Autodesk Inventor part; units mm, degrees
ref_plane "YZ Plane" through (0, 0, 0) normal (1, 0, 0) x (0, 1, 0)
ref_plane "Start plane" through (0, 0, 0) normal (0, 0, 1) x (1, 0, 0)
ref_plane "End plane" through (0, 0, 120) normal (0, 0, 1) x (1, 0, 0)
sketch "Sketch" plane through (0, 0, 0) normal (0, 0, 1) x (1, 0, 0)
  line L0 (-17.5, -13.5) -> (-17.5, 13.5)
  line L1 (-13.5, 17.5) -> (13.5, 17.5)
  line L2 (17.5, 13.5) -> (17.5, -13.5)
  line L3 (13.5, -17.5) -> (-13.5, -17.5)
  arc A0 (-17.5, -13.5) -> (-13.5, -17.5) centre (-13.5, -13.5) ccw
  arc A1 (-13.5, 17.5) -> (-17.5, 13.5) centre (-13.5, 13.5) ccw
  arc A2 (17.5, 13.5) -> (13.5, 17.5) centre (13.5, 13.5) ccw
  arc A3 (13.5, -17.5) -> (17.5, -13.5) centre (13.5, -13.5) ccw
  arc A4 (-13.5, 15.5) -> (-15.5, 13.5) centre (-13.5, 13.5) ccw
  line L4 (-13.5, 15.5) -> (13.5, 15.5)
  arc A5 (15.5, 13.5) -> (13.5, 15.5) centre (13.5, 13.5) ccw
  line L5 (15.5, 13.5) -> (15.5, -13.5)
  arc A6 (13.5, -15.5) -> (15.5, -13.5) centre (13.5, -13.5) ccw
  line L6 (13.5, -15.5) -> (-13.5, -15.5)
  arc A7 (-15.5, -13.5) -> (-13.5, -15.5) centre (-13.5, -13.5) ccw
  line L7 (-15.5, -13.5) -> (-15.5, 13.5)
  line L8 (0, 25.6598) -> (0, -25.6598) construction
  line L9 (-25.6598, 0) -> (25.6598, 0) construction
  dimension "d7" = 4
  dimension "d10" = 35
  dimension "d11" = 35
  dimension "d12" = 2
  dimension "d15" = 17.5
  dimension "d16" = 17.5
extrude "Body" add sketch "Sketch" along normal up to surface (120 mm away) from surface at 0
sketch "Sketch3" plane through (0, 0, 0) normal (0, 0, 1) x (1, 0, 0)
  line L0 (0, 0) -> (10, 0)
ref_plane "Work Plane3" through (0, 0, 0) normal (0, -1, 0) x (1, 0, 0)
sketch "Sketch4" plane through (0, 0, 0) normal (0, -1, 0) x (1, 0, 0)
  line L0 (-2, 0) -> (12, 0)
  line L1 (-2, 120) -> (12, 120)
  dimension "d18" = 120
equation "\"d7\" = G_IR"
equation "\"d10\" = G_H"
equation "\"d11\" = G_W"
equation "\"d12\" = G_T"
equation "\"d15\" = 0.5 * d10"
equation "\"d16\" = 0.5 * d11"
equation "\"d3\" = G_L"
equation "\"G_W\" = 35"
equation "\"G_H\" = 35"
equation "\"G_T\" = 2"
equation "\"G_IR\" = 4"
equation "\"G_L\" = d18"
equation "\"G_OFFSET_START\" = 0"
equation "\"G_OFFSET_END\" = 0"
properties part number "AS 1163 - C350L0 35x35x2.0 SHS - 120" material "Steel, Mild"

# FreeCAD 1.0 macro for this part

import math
import FreeCAD as App
import Part
import Sketcher

doc = App.newDocument("Part")
body = doc.addObject("PartDesign::Body", "Body")

# Sketch on XY plane
sketch1 = body.newObject("Sketcher::SketchObject", "Sketch")
sketch1.AttachmentSupport = (doc.getObject("XY_Plane"), [""])
sketch1.MapMode = "FlatFace"
sketch1.addGeometry([
    Part.LineSegment(App.Vector(-17.5, 13.5, 0), App.Vector(-17.5, -13.5, 0)),  # 0
    Part.ArcOfCircle(Part.Circle(App.Vector(-13.5, -13.5, 0), App.Vector(0, 0, 1), 4), math.radians(180), math.radians(270)),  # 1
    Part.LineSegment(App.Vector(-13.5, -17.5, 0), App.Vector(13.5, -17.5, 0)),  # 2
    Part.ArcOfCircle(Part.Circle(App.Vector(13.5, -13.5, 0), App.Vector(0, 0, 1), 4), math.radians(-90), math.radians(0)),  # 3
    Part.LineSegment(App.Vector(17.5, -13.5, 0), App.Vector(17.5, 13.5, 0)),  # 4
    Part.ArcOfCircle(Part.Circle(App.Vector(13.5, 13.5, 0), App.Vector(0, 0, 1), 4), math.radians(0), math.radians(90)),  # 5
    Part.LineSegment(App.Vector(13.5, 17.5, 0), App.Vector(-13.5, 17.5, 0)),  # 6
    Part.ArcOfCircle(Part.Circle(App.Vector(-13.5, 13.5, 0), App.Vector(0, 0, 1), 4), math.radians(90), math.radians(180)),  # 7
    Part.ArcOfCircle(Part.Circle(App.Vector(-13.5, 13.5, 0), App.Vector(0, 0, 1), 2), math.radians(90), math.radians(180)),  # 8
    Part.LineSegment(App.Vector(-13.5, 15.5, 0), App.Vector(13.5, 15.5, 0)),  # 9
    Part.ArcOfCircle(Part.Circle(App.Vector(13.5, 13.5, 0), App.Vector(0, 0, 1), 2), math.radians(0), math.radians(90)),  # 10
    Part.LineSegment(App.Vector(15.5, 13.5, 0), App.Vector(15.5, -13.5, 0)),  # 11
    Part.ArcOfCircle(Part.Circle(App.Vector(13.5, -13.5, 0), App.Vector(0, 0, 1), 2), math.radians(-90), math.radians(0)),  # 12
    Part.LineSegment(App.Vector(13.5, -15.5, 0), App.Vector(-13.5, -15.5, 0)),  # 13
    Part.ArcOfCircle(Part.Circle(App.Vector(-13.5, -13.5, 0), App.Vector(0, 0, 1), 2), math.radians(180), math.radians(270)),  # 14
    Part.LineSegment(App.Vector(-15.5, -13.5, 0), App.Vector(-15.5, 13.5, 0)),  # 15
], False)
sketch1.addConstraint([
    Sketcher.Constraint("Tangent", 0, 2, 1, 1),
    Sketcher.Constraint("Tangent", 1, 2, 2, 1),
    Sketcher.Constraint("Tangent", 2, 2, 3, 1),
    Sketcher.Constraint("Tangent", 3, 2, 4, 1),
    Sketcher.Constraint("Tangent", 4, 2, 5, 1),
    Sketcher.Constraint("Tangent", 5, 2, 6, 1),
    Sketcher.Constraint("Tangent", 6, 2, 7, 1),
    Sketcher.Constraint("Tangent", 7, 2, 0, 1),
    Sketcher.Constraint("Tangent", 8, 1, 9, 1),
    Sketcher.Constraint("Tangent", 9, 2, 10, 2),
    Sketcher.Constraint("Tangent", 10, 1, 11, 1),
    Sketcher.Constraint("Tangent", 11, 2, 12, 2),
    Sketcher.Constraint("Tangent", 12, 1, 13, 1),
    Sketcher.Constraint("Tangent", 13, 2, 14, 2),
    Sketcher.Constraint("Tangent", 14, 1, 15, 1),
    Sketcher.Constraint("Tangent", 15, 2, 8, 2),
    Sketcher.Constraint("Vertical", 0),
    Sketcher.Constraint("Horizontal", 2),
    Sketcher.Constraint("Vertical", 4),
    Sketcher.Constraint("Horizontal", 6),
    Sketcher.Constraint("Horizontal", 9),
    Sketcher.Constraint("Vertical", 11),
    Sketcher.Constraint("Horizontal", 13),
    Sketcher.Constraint("Vertical", 15),
    Sketcher.Constraint("Coincident", 8, 3, 7, 3),
    Sketcher.Constraint("Coincident", 10, 3, 5, 3),
    Sketcher.Constraint("Coincident", 12, 3, 3, 3),
    Sketcher.Constraint("Equal", 1, 3),
    Sketcher.Constraint("Equal", 3, 5),
    Sketcher.Constraint("Equal", 5, 7),
    Sketcher.Constraint("Equal", 12, 14),
    Sketcher.Constraint("Symmetric", 1, 3, 5, 3, -1, 1),
    Sketcher.Constraint("Equal", 13, 0),
    Sketcher.Constraint("Radius", 1, 4.0),
    Sketcher.Constraint("Radius", 8, 2.0),
    Sketcher.Constraint("DistanceX", 0, 2, -1, 1, 17.5),
])
pad1 = body.newObject("PartDesign::Pad", "Pad")
pad1.Profile = sketch1
pad1.Length = 120

doc.recompute()
